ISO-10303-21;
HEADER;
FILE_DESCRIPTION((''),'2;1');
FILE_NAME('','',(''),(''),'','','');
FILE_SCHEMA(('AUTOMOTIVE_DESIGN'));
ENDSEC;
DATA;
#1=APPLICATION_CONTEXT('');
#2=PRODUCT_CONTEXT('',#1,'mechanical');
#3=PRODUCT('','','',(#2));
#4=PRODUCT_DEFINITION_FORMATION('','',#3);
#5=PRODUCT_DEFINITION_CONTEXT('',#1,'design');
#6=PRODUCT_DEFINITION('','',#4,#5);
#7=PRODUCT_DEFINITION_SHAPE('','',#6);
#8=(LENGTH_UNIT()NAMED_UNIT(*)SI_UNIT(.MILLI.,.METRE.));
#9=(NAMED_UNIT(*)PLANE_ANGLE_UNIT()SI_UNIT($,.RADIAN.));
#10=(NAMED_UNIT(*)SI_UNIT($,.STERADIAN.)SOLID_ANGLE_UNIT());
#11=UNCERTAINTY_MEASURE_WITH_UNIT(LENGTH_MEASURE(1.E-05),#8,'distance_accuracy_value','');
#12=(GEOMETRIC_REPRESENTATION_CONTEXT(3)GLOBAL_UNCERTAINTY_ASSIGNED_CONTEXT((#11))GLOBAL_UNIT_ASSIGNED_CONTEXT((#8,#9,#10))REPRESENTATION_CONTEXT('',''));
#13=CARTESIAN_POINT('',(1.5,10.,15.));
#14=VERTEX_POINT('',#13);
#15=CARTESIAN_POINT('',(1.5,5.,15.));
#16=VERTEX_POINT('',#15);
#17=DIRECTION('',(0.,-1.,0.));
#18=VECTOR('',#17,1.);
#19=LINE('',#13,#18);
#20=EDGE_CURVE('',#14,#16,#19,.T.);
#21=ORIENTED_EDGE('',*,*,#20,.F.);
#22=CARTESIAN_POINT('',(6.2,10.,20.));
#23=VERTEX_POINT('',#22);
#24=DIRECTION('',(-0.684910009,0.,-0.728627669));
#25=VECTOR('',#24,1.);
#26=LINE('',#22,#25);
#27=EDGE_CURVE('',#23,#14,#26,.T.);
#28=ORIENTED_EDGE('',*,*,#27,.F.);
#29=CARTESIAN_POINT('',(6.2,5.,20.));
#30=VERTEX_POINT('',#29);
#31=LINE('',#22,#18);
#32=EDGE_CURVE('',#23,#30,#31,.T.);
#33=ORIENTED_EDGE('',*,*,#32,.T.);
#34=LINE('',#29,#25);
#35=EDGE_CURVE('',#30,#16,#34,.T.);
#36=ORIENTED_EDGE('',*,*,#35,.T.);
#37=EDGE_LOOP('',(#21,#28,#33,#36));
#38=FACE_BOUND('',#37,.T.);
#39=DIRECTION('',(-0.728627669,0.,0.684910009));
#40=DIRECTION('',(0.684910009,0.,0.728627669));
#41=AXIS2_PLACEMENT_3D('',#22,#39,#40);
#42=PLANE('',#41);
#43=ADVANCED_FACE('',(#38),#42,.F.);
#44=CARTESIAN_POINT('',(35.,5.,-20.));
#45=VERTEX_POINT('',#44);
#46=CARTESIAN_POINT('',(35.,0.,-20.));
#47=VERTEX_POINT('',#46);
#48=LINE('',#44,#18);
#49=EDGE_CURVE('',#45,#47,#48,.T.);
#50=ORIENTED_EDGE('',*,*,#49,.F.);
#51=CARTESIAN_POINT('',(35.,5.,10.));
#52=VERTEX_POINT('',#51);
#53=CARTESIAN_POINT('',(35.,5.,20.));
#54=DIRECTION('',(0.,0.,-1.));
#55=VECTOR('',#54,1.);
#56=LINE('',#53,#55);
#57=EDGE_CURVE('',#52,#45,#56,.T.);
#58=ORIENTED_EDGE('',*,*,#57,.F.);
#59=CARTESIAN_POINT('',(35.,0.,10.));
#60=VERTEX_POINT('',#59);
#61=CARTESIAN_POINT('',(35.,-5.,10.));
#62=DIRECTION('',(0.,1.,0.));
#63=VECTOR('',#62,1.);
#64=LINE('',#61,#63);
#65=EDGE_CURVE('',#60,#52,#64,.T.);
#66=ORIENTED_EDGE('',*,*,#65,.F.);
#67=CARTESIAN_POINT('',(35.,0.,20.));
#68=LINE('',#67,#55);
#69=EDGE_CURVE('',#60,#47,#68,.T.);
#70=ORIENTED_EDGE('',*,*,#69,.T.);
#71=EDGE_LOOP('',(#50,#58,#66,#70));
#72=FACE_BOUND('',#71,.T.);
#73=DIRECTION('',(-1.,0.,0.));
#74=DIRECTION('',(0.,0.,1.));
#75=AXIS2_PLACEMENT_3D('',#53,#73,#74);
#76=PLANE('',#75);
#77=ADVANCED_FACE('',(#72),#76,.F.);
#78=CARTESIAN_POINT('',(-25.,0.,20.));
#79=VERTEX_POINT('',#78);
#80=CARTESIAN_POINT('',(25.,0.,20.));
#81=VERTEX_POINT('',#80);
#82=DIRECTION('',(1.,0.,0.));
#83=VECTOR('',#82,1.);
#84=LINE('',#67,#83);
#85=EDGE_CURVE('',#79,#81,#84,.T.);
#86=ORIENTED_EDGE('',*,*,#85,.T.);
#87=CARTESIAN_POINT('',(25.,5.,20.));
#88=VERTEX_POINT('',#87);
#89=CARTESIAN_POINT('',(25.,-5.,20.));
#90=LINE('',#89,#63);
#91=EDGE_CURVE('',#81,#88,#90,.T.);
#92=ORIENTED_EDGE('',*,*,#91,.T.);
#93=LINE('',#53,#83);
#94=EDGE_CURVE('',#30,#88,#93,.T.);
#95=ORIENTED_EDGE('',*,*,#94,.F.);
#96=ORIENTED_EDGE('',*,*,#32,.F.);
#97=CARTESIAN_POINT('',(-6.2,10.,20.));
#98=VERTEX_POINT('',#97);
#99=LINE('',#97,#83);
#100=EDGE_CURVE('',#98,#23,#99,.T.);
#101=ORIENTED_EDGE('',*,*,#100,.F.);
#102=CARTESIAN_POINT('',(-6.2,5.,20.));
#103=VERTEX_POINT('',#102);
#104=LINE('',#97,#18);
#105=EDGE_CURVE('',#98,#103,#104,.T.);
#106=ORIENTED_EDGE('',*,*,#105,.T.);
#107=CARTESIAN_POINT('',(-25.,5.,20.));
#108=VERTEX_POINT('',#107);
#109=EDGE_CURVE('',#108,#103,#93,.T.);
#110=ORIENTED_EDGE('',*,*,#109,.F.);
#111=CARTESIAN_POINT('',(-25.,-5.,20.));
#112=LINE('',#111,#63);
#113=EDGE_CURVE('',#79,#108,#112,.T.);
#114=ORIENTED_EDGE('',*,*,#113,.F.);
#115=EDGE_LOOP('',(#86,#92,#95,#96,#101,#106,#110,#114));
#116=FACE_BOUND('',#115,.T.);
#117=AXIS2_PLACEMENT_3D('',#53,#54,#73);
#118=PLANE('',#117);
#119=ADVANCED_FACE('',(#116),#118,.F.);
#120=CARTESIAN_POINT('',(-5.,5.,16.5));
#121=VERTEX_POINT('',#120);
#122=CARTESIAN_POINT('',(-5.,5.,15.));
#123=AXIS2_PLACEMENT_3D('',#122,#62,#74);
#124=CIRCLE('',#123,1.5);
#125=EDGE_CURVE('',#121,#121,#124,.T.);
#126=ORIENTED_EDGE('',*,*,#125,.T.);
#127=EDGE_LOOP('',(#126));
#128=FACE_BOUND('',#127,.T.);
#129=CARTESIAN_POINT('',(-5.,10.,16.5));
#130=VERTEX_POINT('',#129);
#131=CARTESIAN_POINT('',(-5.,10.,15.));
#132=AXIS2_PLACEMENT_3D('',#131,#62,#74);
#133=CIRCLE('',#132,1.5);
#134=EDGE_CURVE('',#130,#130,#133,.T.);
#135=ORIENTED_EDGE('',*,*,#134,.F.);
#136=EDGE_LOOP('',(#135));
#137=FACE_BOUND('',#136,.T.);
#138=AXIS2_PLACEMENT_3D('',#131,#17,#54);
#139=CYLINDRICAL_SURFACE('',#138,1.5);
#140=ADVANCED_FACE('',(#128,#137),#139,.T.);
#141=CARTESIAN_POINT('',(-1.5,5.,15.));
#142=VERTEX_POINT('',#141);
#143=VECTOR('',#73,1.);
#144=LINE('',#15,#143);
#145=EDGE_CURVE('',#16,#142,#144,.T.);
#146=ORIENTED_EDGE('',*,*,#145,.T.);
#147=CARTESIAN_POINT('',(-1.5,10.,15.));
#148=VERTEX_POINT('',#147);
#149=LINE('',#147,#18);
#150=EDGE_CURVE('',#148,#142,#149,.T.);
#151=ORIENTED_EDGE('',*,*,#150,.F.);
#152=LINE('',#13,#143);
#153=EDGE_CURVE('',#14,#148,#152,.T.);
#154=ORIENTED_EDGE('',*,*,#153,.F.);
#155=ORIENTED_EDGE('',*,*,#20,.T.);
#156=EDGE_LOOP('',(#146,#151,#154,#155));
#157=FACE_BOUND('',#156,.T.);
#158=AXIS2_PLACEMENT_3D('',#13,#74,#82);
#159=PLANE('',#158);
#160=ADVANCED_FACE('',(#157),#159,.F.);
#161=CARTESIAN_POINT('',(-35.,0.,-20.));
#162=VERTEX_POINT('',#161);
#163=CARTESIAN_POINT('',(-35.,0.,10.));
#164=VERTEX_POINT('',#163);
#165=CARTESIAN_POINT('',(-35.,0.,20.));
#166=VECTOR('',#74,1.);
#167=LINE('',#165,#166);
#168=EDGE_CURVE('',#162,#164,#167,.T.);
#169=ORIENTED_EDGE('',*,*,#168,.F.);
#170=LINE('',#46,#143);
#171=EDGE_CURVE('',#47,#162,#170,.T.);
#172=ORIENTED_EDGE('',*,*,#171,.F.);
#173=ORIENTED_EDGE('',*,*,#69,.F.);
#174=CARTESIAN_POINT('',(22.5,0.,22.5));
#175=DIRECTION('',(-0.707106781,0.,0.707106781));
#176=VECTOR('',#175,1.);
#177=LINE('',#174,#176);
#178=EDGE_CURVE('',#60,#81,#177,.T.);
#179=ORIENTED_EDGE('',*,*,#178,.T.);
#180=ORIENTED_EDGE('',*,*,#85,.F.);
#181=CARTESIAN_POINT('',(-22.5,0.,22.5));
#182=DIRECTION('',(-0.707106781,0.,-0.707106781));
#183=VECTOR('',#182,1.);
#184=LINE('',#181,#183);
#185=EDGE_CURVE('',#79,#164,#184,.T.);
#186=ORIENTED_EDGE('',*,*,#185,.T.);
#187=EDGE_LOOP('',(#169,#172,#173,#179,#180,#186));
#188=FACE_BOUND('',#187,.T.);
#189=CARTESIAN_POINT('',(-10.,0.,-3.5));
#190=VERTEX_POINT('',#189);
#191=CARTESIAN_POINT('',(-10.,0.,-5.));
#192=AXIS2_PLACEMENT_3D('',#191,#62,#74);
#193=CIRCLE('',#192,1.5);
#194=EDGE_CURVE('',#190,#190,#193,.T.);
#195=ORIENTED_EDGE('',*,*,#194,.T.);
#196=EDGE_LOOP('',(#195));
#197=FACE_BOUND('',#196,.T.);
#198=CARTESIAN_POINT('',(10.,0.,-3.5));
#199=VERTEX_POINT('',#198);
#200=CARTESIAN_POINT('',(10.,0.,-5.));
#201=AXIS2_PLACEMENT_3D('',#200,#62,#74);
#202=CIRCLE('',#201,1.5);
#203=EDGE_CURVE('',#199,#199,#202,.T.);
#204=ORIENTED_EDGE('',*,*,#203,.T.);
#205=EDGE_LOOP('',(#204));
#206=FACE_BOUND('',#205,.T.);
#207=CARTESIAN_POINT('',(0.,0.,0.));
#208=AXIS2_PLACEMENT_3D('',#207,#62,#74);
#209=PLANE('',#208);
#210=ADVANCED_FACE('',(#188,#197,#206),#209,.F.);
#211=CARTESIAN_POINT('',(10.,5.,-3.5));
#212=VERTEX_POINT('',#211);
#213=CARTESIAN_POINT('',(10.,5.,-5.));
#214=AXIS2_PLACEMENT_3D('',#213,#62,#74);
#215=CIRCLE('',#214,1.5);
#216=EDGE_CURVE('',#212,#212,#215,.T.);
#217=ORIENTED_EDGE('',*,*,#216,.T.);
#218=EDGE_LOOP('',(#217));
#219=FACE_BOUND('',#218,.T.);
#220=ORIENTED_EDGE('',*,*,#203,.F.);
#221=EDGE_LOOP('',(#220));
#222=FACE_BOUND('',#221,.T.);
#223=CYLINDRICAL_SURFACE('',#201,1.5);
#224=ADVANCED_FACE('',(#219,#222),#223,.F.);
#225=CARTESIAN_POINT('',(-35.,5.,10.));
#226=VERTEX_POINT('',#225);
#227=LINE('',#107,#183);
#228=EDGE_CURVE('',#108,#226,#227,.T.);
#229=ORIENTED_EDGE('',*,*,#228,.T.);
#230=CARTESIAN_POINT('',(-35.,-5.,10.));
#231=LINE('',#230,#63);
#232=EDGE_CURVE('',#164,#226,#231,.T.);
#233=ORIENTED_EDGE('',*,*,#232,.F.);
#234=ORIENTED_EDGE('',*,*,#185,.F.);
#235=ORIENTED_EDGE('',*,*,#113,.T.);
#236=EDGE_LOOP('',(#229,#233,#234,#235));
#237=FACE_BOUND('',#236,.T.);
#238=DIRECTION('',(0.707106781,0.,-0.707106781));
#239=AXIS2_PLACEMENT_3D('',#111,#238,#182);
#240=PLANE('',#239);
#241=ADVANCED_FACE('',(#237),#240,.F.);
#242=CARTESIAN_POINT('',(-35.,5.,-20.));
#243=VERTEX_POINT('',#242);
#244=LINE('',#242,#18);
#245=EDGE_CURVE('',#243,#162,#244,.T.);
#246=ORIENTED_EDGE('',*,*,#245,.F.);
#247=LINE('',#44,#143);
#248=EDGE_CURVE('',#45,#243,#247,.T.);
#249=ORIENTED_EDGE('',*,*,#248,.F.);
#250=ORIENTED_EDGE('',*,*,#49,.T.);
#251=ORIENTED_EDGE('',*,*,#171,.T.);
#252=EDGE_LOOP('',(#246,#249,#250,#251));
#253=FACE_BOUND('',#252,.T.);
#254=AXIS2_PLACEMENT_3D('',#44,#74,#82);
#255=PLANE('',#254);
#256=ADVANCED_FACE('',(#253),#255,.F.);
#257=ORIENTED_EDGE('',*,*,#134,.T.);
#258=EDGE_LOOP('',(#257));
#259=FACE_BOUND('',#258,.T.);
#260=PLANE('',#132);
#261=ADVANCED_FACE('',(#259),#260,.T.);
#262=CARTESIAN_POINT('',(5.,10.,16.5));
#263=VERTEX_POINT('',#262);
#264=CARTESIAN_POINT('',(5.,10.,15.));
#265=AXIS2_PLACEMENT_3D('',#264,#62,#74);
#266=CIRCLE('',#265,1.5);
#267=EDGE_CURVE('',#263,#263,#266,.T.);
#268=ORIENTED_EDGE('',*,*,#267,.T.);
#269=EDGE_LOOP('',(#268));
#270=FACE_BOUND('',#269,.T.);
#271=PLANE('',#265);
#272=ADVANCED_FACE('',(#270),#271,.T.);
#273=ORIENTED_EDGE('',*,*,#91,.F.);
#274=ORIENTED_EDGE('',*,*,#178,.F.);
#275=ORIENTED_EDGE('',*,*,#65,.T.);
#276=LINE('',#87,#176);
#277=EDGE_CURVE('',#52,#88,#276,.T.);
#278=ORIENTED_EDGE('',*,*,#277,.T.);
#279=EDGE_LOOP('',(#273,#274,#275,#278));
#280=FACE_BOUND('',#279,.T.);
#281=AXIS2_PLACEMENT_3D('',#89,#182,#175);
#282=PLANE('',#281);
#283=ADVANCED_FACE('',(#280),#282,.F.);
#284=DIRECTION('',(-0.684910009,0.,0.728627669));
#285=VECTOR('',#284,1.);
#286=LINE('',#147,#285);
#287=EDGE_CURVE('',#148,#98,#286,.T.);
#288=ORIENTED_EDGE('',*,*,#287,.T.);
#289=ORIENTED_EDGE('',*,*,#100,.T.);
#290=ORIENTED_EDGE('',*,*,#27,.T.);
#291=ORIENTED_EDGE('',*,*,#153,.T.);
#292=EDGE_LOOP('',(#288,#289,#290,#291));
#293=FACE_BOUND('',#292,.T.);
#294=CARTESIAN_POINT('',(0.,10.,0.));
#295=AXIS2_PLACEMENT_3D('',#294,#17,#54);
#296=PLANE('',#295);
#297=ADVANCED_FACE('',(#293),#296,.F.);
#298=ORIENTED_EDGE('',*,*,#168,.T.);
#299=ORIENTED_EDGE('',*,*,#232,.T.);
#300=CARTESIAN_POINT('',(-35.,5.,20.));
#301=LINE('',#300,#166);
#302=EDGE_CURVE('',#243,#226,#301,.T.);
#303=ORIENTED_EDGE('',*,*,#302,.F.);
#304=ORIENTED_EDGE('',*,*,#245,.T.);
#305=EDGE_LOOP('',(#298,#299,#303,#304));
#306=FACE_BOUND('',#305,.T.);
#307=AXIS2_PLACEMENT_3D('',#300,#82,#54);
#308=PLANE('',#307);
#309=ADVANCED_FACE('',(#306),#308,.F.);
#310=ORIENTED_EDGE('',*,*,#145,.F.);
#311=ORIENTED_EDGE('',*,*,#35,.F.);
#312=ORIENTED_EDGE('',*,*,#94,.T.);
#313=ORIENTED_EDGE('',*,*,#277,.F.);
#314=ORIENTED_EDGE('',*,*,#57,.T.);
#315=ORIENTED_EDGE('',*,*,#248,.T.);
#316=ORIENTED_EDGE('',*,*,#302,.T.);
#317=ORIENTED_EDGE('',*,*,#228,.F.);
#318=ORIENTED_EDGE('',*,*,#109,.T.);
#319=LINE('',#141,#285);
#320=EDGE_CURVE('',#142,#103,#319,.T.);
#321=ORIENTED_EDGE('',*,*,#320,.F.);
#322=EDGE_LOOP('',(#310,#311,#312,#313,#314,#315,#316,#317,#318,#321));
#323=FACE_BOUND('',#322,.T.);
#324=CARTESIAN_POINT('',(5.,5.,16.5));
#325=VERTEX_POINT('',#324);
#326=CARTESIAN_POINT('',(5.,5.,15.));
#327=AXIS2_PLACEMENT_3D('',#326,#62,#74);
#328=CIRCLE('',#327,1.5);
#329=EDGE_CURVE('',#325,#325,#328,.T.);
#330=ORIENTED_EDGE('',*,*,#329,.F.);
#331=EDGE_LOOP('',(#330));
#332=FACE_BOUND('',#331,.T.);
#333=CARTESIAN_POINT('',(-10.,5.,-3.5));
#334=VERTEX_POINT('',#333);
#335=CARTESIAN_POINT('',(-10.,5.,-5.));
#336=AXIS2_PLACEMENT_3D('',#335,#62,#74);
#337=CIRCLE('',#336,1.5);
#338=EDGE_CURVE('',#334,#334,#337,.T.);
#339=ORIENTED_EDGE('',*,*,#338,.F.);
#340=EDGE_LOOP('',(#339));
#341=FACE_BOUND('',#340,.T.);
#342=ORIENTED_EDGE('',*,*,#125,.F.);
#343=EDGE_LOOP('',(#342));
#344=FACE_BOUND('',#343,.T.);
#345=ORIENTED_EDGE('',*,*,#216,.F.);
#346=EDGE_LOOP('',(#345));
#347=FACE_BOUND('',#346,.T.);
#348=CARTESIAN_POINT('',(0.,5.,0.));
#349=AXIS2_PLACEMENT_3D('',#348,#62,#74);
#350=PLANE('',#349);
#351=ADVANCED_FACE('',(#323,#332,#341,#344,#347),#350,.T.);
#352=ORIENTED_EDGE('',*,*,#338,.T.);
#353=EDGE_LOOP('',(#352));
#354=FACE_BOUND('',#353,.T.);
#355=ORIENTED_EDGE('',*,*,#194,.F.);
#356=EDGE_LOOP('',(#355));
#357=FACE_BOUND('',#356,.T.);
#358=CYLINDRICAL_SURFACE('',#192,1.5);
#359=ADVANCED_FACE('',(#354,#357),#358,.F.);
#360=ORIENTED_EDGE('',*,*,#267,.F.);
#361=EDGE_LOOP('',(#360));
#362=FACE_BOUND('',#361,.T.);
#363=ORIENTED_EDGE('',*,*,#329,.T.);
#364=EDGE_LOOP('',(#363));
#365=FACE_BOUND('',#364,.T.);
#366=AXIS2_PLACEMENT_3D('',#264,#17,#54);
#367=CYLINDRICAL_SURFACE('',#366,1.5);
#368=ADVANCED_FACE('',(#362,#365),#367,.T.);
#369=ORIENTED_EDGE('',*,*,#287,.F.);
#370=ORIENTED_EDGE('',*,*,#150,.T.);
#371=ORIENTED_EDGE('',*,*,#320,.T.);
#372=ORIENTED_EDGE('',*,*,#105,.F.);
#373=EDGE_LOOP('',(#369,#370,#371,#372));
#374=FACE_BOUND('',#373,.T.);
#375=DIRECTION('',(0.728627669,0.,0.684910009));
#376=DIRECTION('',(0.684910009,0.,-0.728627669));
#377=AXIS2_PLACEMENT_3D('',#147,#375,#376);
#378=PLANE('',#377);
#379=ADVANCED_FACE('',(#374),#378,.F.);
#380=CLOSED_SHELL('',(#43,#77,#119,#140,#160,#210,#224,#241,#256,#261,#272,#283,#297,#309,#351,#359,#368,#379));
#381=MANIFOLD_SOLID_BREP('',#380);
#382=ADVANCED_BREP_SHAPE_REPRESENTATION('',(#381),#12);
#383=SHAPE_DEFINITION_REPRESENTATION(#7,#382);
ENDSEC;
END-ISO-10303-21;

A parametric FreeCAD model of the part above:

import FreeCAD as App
import Part
import Sketcher
from FreeCAD import Vector
Q = App.Units.Quantity


def add_polygon(sketch, points):
    """Adds a closed chain of lines whose ends are joined by coincident constraints."""
    first, n = sketch.GeometryCount, len(points)
    for a, b in zip(points, points[1:] + points[:1]):
        sketch.addGeometry(Part.LineSegment(App.Vector(*a, 0), App.Vector(*b, 0)), False)
    for i in range(n):
        sketch.addConstraint(Sketcher.Constraint("Coincident", first + i, 2, first + (i + 1) % n, 1))

doc = App.newDocument("Part")
body = doc.addObject("PartDesign::Body", "Body")

# Sketch on XZ plane
sketch1 = doc.addObject("Sketcher::SketchObject", "Sketch")
body.addObject(sketch1)
sketch1.AttachmentSupport = (doc.XZ_Plane, [""])
sketch1.MapMode = "FlatFace"
add_polygon(sketch1, [(-35, -20), (-35, 20), (35, 20), (35, -20)])  # lines 0-3
sketch1.addConstraint([
    Sketcher.Constraint("Vertical", 0),
    Sketcher.Constraint("Horizontal", 1),
    Sketcher.Constraint("Vertical", 2),
    Sketcher.Constraint("Horizontal", 3),
    Sketcher.Constraint("Symmetric", 0, 2, 2, 2, -1, 1),
    Sketcher.Constraint("DistanceX", 1, 1, 1, 2, Q("70 mm")),
    Sketcher.Constraint("DistanceY", 0, 1, 0, 2, Q("40 mm")),
])
pad1 = doc.addObject("PartDesign::Pad", "Pad")
body.addObject(pad1)
pad1.Profile = sketch1
pad1.Length = 5
pad1.Reversed = True

# Sketch on XZ plane
sketch2 = doc.addObject("Sketcher::SketchObject", "Sketch001")
body.addObject(sketch2)
sketch2.AttachmentSupport = (doc.XZ_Plane, [""])
sketch2.MapMode = "FlatFace"
sketch2.AttachmentOffset = App.Placement(Vector(0, 0, -5), App.Rotation())
sketch2.addGeometry(Part.Circle(Vector(-10, -5, 0), Vector(0, 0, 1), 1.5), False)
sketch2.addConstraint([
    Sketcher.Constraint("Diameter", 0, Q("3 mm")),
    Sketcher.Constraint("DistanceX", 0, 3, -1, 1, Q("10 mm")),
    Sketcher.Constraint("DistanceY", 0, 3, -1, 1, Q("5 mm")),
])
pocket1 = doc.addObject("PartDesign::Pocket", "Pocket")
body.addObject(pocket1)
pocket1.Profile = sketch2
pocket1.Length = 5
pocket1.Reversed = True

# Sketch on XZ plane
sketch3 = doc.addObject("Sketcher::SketchObject", "Sketch002")
body.addObject(sketch3)
sketch3.AttachmentSupport = (doc.XZ_Plane, [""])
sketch3.MapMode = "FlatFace"
sketch3.AttachmentOffset = App.Placement(Vector(0, 0, -5), App.Rotation())
sketch3.addGeometry([
    Part.Circle(Vector(-10, -5, 0), Vector(0, 0, 1), 1.5),
    Part.Circle(Vector(10, -5, 0), Vector(0, 0, 1), 1.5),
], False)
sketch3.addConstraint([
    Sketcher.Constraint("Equal", 0, 1),
    Sketcher.Constraint("Symmetric", 0, 3, 1, 3, -2),
    Sketcher.Constraint("Diameter", 0, Q("3 mm")),
    Sketcher.Constraint("DistanceX", 0, 3, -1, 1, Q("10 mm")),
    Sketcher.Constraint("DistanceY", 0, 3, -1, 1, Q("5 mm")),
])
pocket2 = doc.addObject("PartDesign::Pocket", "Pocket001")
body.addObject(pocket2)
pocket2.Profile = sketch3
pocket2.Length = 5
pocket2.Reversed = True

# Sketch on XZ plane
sketch4 = doc.addObject("Sketcher::SketchObject", "Sketch003")
body.addObject(sketch4)
sketch4.AttachmentSupport = (doc.XZ_Plane, [""])
sketch4.MapMode = "FlatFace"
sketch4.AttachmentOffset = App.Placement(Vector(0, 0, -5), App.Rotation())
sketch4.addGeometry(Part.Circle(Vector(-5, 15, 0), Vector(0, 0, 1), 1.5), False)
sketch4.addConstraint([
    Sketcher.Constraint("Diameter", 0, Q("3 mm")),
    Sketcher.Constraint("DistanceX", 0, 3, -1, 1, Q("5 mm")),
    Sketcher.Constraint("DistanceY", -1, 1, 0, 3, Q("15 mm")),
])
pad2 = doc.addObject("PartDesign::Pad", "Pad001")
body.addObject(pad2)
pad2.Profile = sketch4
pad2.Length = 5
pad2.Reversed = True

# Sketch on XZ plane
sketch5 = doc.addObject("Sketcher::SketchObject", "Sketch004")
body.addObject(sketch5)
sketch5.AttachmentSupport = (doc.XZ_Plane, [""])
sketch5.MapMode = "FlatFace"
sketch5.AttachmentOffset = App.Placement(Vector(0, 0, -5), App.Rotation())
sketch5.addGeometry([
    Part.Circle(Vector(-5, 15, 0), Vector(0, 0, 1), 1.5),
    Part.Circle(Vector(5, 15, 0), Vector(0, 0, 1), 1.5),
], False)
sketch5.addConstraint([
    Sketcher.Constraint("Equal", 0, 1),
    Sketcher.Constraint("Symmetric", 0, 3, 1, 3, -2),
    Sketcher.Constraint("Diameter", 0, Q("3 mm")),
    Sketcher.Constraint("DistanceX", 0, 3, -1, 1, Q("5 mm")),
    Sketcher.Constraint("DistanceY", -1, 1, 0, 3, Q("15 mm")),
])
pad3 = doc.addObject("PartDesign::Pad", "Pad002")
body.addObject(pad3)
pad3.Profile = sketch5
pad3.Length = 5
pad3.Reversed = True

# Sketch on XZ plane
sketch6 = doc.addObject("Sketcher::SketchObject", "Sketch005")
body.addObject(sketch6)
sketch6.AttachmentSupport = (doc.XZ_Plane, [""])
sketch6.MapMode = "FlatFace"
sketch6.AttachmentOffset = App.Placement(Vector(0, 0, -5), App.Rotation())
add_polygon(sketch6, [(-25, 20), (-35, 10), (-35, 20)])  # lines 0-2
sketch6.addConstraint([
    Sketcher.Constraint("Vertical", 1),
    Sketcher.Constraint("Horizontal", 2),
    Sketcher.Constraint("Equal", 2, 1),
    Sketcher.Constraint("DistanceX", 2, 1, 2, 2, Q("10 mm")),
    Sketcher.Constraint("DistanceX", 0, 2, -1, 1, Q("35 mm")),
    Sketcher.Constraint("DistanceY", -1, 1, 0, 2, Q("10 mm")),
])
pocket3 = doc.addObject("PartDesign::Pocket", "Pocket002")
body.addObject(pocket3)
pocket3.Profile = sketch6
pocket3.Length = 10
pocket3.Reversed = True

# Sketch on XZ plane
sketch7 = doc.addObject("Sketcher::SketchObject", "Sketch006")
body.addObject(sketch7)
sketch7.AttachmentSupport = (doc.XZ_Plane, [""])
sketch7.MapMode = "FlatFace"
sketch7.AttachmentOffset = App.Placement(Vector(0, 0, -5), App.Rotation())
add_polygon(sketch7, [(25, 20), (35, 20), (35, 10)])  # lines 0-2
sketch7.addConstraint([
    Sketcher.Constraint("Horizontal", 0),
    Sketcher.Constraint("Vertical", 1),
    Sketcher.Constraint("Equal", 0, 1),
    Sketcher.Constraint("DistanceX", 0, 1, 0, 2, Q("10 mm")),
    Sketcher.Constraint("DistanceX", -1, 1, 0, 2, Q("35 mm")),
    Sketcher.Constraint("DistanceY", -1, 1, 0, 2, Q("20 mm")),
])
pocket4 = doc.addObject("PartDesign::Pocket", "Pocket003")
body.addObject(pocket4)
pocket4.Profile = sketch7
pocket4.Length = 10
pocket4.Reversed = True

# Sketch on XZ plane
sketch8 = doc.addObject("Sketcher::SketchObject", "Sketch007")
body.addObject(sketch8)
sketch8.AttachmentSupport = (doc.XZ_Plane, [""])
sketch8.MapMode = "FlatFace"
sketch8.AttachmentOffset = App.Placement(Vector(0, 0, -5), App.Rotation())
add_polygon(sketch8, [(-6.2, 20), (6.2, 20), (1.5, 15), (-1.5, 15)])  # lines 0-3
sketch8.addConstraint([
    Sketcher.Constraint("Horizontal", 0),
    Sketcher.Constraint("Horizontal", 2),
    Sketcher.Constraint("Equal", 1, 3),
    Sketcher.Constraint("DistanceX", 2, 2, 2, 1, Q("3 mm")),
    Sketcher.Constraint("DistanceX", 0, 1, 0, 2, Q("12.4 mm")),
    Sketcher.Constraint("DistanceY", -1, 1, 0, 2, Q("20 mm")),
    Sketcher.Constraint("DistanceY", -1, 1, 1, 2, Q("15 mm")),
    Sketcher.Constraint("DistanceX", -1, 1, 0, 2, Q("6.2 mm")),
])
pad4 = doc.addObject("PartDesign::Pad", "Pad003")
body.addObject(pad4)
pad4.Profile = sketch8
pad4.Length = 5
pad4.Reversed = True

doc.recompute()
